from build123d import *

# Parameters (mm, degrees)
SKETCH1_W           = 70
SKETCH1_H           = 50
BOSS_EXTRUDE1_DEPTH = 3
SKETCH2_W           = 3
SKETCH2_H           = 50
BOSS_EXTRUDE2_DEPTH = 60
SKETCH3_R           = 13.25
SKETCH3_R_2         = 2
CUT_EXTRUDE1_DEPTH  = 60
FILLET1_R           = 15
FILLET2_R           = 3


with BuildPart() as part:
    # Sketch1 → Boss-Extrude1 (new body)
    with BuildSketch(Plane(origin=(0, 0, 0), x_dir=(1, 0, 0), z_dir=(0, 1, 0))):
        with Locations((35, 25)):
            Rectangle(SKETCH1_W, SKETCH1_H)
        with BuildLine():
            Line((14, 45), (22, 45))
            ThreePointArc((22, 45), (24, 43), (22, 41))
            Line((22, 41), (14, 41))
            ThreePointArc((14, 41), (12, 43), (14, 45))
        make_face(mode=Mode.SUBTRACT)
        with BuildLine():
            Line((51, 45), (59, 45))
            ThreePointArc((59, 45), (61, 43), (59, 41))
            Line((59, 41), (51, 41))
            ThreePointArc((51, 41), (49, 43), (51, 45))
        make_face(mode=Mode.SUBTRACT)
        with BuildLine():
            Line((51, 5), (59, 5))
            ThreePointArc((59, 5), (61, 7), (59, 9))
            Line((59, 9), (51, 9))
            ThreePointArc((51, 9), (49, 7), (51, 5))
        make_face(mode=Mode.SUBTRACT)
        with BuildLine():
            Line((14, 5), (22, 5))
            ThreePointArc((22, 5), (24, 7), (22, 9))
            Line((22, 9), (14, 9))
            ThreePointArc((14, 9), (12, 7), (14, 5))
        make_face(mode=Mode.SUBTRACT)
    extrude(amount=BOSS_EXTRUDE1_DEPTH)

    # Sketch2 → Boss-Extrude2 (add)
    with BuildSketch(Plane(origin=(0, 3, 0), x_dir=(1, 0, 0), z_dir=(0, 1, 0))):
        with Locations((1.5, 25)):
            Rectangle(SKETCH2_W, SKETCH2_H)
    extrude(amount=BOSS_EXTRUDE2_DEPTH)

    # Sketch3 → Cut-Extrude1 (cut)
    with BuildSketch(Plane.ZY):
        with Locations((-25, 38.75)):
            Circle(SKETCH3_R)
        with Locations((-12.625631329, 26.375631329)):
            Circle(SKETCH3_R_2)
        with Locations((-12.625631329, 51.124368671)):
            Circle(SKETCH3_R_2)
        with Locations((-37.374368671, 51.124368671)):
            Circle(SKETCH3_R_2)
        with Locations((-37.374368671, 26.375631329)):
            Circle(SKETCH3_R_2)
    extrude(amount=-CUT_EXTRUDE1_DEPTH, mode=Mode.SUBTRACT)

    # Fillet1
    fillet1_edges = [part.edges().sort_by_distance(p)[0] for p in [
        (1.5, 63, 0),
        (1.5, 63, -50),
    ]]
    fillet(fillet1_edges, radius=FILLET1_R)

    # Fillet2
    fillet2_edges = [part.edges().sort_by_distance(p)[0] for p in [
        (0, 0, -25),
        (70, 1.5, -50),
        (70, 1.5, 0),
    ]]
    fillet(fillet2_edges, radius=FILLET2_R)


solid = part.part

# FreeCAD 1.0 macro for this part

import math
import FreeCAD as App
import Part
import Sketcher
from FreeCAD import Vector
Q = App.Units.Quantity


def edges_at(feature, points):
    """Names of the edges that pass closest to the given points."""
    edges = feature.Shape.Edges
    near = lambda p: min(range(len(edges)), key=lambda i: edges[i].distToShape(Part.Vertex(*p))[0])
    return sorted({f"Edge{near(p) + 1}" for p in points})


def add_polygon(sketch, points):
    """Adds a closed chain of lines whose ends are joined by coincident constraints."""
    first, n = sketch.GeometryCount, len(points)
    for a, b in zip(points, points[1:] + points[:1]):
        sketch.addGeometry(Part.LineSegment(App.Vector(*a, 0), App.Vector(*b, 0)), False)
    for i in range(n):
        sketch.addConstraint(Sketcher.Constraint("Coincident", first + i, 2, first + (i + 1) % n, 1))

doc = App.newDocument("Part")
body = doc.addObject("PartDesign::Body", "Body")

# Sketch on XZ plane
sketch1 = body.newObject("Sketcher::SketchObject", "Sketch")
sketch1.AttachmentSupport = (doc.getObject("XZ_Plane"), [""])
sketch1.MapMode = "FlatFace"
add_polygon(sketch1, [(0, -50), (0, 0), (70, 0), (70, -50)])  # lines 0-3
sketch1.addGeometry(Part.LineSegment(Vector(22, -5, 0), Vector(14, -5, 0)), False)  # 4
sketch1.addGeometry(Part.ArcOfCircle(Part.Circle(Vector(14, -7, 0), Vector(0, 0, 1), 2), math.radians(90), math.radians(270)), False)  # 5
sketch1.addGeometry(Part.LineSegment(Vector(14, -9, 0), Vector(22, -9, 0)), False)  # 6
sketch1.addGeometry(Part.ArcOfCircle(Part.Circle(Vector(22, -7, 0), Vector(0, 0, 1), 2), math.radians(-90), math.radians(90)), False)  # 7
sketch1.addGeometry(Part.LineSegment(Vector(59, -5, 0), Vector(51, -5, 0)), False)  # 8
sketch1.addGeometry(Part.ArcOfCircle(Part.Circle(Vector(51, -7, 0), Vector(0, 0, 1), 2), math.radians(90), math.radians(270)), False)  # 9
sketch1.addGeometry(Part.LineSegment(Vector(51, -9, 0), Vector(59, -9, 0)), False)  # 10
sketch1.addGeometry(Part.ArcOfCircle(Part.Circle(Vector(59, -7, 0), Vector(0, 0, 1), 2), math.radians(-90), math.radians(90)), False)  # 11
sketch1.addGeometry(Part.ArcOfCircle(Part.Circle(Vector(14, -43, 0), Vector(0, 0, 1), 2), math.radians(90), math.radians(270)), False)  # 12
sketch1.addGeometry(Part.LineSegment(Vector(14, -45, 0), Vector(22, -45, 0)), False)  # 13
sketch1.addGeometry(Part.ArcOfCircle(Part.Circle(Vector(22, -43, 0), Vector(0, 0, 1), 2), math.radians(-90), math.radians(90)), False)  # 14
sketch1.addGeometry(Part.LineSegment(Vector(22, -41, 0), Vector(14, -41, 0)), False)  # 15
sketch1.addGeometry(Part.ArcOfCircle(Part.Circle(Vector(51, -43, 0), Vector(0, 0, 1), 2), math.radians(90), math.radians(270)), False)  # 16
sketch1.addGeometry(Part.LineSegment(Vector(51, -45, 0), Vector(59, -45, 0)), False)  # 17
sketch1.addGeometry(Part.ArcOfCircle(Part.Circle(Vector(59, -43, 0), Vector(0, 0, 1), 2), math.radians(-90), math.radians(90)), False)  # 18
sketch1.addGeometry(Part.LineSegment(Vector(59, -41, 0), Vector(51, -41, 0)), False)  # 19
sketch1.addConstraint([
    Sketcher.Constraint("Tangent", 4, 2, 5, 1),
    Sketcher.Constraint("Tangent", 5, 2, 6, 1),
    Sketcher.Constraint("Tangent", 6, 2, 7, 1),
    Sketcher.Constraint("Tangent", 7, 2, 4, 1),
    Sketcher.Constraint("Tangent", 8, 2, 9, 1),
    Sketcher.Constraint("Tangent", 9, 2, 10, 1),
    Sketcher.Constraint("Tangent", 10, 2, 11, 1),
    Sketcher.Constraint("Tangent", 11, 2, 8, 1),
    Sketcher.Constraint("Tangent", 12, 2, 13, 1),
    Sketcher.Constraint("Tangent", 13, 2, 14, 1),
    Sketcher.Constraint("Tangent", 14, 2, 15, 1),
    Sketcher.Constraint("Tangent", 15, 2, 12, 1),
    Sketcher.Constraint("Tangent", 16, 2, 17, 1),
    Sketcher.Constraint("Tangent", 17, 2, 18, 1),
    Sketcher.Constraint("Tangent", 18, 2, 19, 1),
    Sketcher.Constraint("Tangent", 19, 2, 16, 1),
    Sketcher.Constraint("Vertical", 0),
    Sketcher.Constraint("Horizontal", 1),
    Sketcher.Constraint("Vertical", 2),
    Sketcher.Constraint("Horizontal", 3),
    Sketcher.Constraint("Horizontal", 4),
    Sketcher.Constraint("Horizontal", 6),
    Sketcher.Constraint("Horizontal", 8),
    Sketcher.Constraint("Horizontal", 10),
    Sketcher.Constraint("Horizontal", 13),
    Sketcher.Constraint("Horizontal", 15),
    Sketcher.Constraint("Horizontal", 17),
    Sketcher.Constraint("Horizontal", 19),
    Sketcher.Constraint("Coincident", 0, 2, -1, 1),
    Sketcher.Constraint("Equal", 7, 9),
    Sketcher.Constraint("Equal", 11, 12),
    Sketcher.Constraint("Equal", 14, 16),
    Sketcher.Constraint("Horizontal", 7, 3, 9, 3),
    Sketcher.Constraint("Horizontal", 14, 3, 16, 3),
    Sketcher.Constraint("Vertical", 5, 3, 12, 3),
    Sketcher.Constraint("Vertical", 7, 3, 14, 3),
    Sketcher.Constraint("Vertical", 9, 3, 16, 3),
    Sketcher.Constraint("Vertical", 11, 3, 18, 3),
    Sketcher.Constraint("Equal", 6, 8),
    Sketcher.Constraint("Radius", 5, Q("2 mm")),
    Sketcher.Constraint("DistanceX", 1, 1, 1, 2, Q("70 mm")),
    Sketcher.Constraint("DistanceX", 4, 2, 4, 1, Q("8 mm")),
    Sketcher.Constraint("DistanceY", 0, 1, 0, 2, Q("50 mm")),
    Sketcher.Constraint("DistanceX", -1, 1, 5, 3, Q("14 mm")),
    Sketcher.Constraint("DistanceY", 5, 3, -1, 1, Q("7 mm")),
    Sketcher.Constraint("DistanceX", -1, 1, 9, 3, Q("51 mm")),
    Sketcher.Constraint("DistanceY", 12, 3, -1, 1, Q("43 mm")),
])
pad1 = body.newObject("PartDesign::Pad", "Pad")
pad1.Profile = sketch1
pad1.Length = 3
pad1.Reversed = True

# Sketch on XZ plane
sketch2 = body.newObject("Sketcher::SketchObject", "Sketch001")
sketch2.AttachmentSupport = (doc.getObject("XZ_Plane"), [""])
sketch2.MapMode = "FlatFace"
sketch2.AttachmentOffset = App.Placement(Vector(0, 0, -3), App.Rotation())
add_polygon(sketch2, [(0, -50), (0, 0), (3, 0), (3, -50)])  # lines 0-3
sketch2.addConstraint([
    Sketcher.Constraint("Vertical", 0),
    Sketcher.Constraint("Horizontal", 1),
    Sketcher.Constraint("Vertical", 2),
    Sketcher.Constraint("Horizontal", 3),
    Sketcher.Constraint("Coincident", 0, 2, -1, 1),
    Sketcher.Constraint("DistanceX", 1, 1, 1, 2, Q("3 mm")),
    Sketcher.Constraint("DistanceY", 0, 1, 0, 2, Q("50 mm")),
])
pad2 = body.newObject("PartDesign::Pad", "Pad001")
pad2.Profile = sketch2
pad2.Length = 60
pad2.Reversed = True

# Sketch on YZ plane
sketch3 = body.newObject("Sketcher::SketchObject", "Sketch002")
sketch3.AttachmentSupport = (doc.getObject("YZ_Plane"), [""])
sketch3.MapMode = "FlatFace"
sketch3.addGeometry([
    Part.Circle(Vector(38.8, -25, 0), Vector(0, 0, 1), 13.2),  # 0
    Part.Circle(Vector(26.4, -12.6, 0), Vector(0, 0, 1), 2),  # 1
    Part.Circle(Vector(51.1, -12.6, 0), Vector(0, 0, 1), 2),  # 2
    Part.Circle(Vector(51.1, -37.4, 0), Vector(0, 0, 1), 2),  # 3
    Part.Circle(Vector(26.4, -37.4, 0), Vector(0, 0, 1), 2),  # 4
], False)
sketch3.addConstraint([
    Sketcher.Constraint("Equal", 1, 2),
    Sketcher.Constraint("Equal", 2, 3),
    Sketcher.Constraint("Equal", 3, 4),
    Sketcher.Constraint("Horizontal", 1, 3, 2, 3),
    Sketcher.Constraint("Horizontal", 3, 3, 4, 3),
    Sketcher.Constraint("Vertical", 2, 3, 3, 3),
    Sketcher.Constraint("Vertical", 1, 3, 4, 3),
    Sketcher.Constraint("Diameter", 1, Q("4 mm")),
    Sketcher.Constraint("Diameter", 0, Q("26.5 mm")),
    Sketcher.Constraint("DistanceY", 0, 3, -1, 1, Q("25 mm")),
    Sketcher.Constraint("DistanceX", -1, 1, 0, 3, Q("38.75 mm")),
    Sketcher.Constraint("DistanceX", -1, 1, 1, 3, Q("26.375631 mm")),
    Sketcher.Constraint("DistanceY", 1, 3, -1, 1, Q("12.625631 mm")),
    Sketcher.Constraint("DistanceX", -1, 1, 2, 3, Q("51.124369 mm")),
    Sketcher.Constraint("DistanceY", 3, 3, -1, 1, Q("37.374369 mm")),
])
pocket1 = body.newObject("PartDesign::Pocket", "Pocket")
pocket1.Profile = sketch3
pocket1.Length = 60
pocket1.Reversed = True
doc.recompute()

fillet = body.newObject("PartDesign::Fillet", "Fillet")
fillet.Base = (pocket1, edges_at(pocket1, [(1.5, 63, 0), (1.5, 63, -50)]))
fillet.Radius = 15
doc.recompute()

fillet2 = body.newObject("PartDesign::Fillet", "Fillet001")
fillet2.Base = (fillet, edges_at(fillet, [(0, 0, -25), (70, 1.5, -50), (70, 1.5, 0)]))
fillet2.Radius = 3

doc.recompute()
